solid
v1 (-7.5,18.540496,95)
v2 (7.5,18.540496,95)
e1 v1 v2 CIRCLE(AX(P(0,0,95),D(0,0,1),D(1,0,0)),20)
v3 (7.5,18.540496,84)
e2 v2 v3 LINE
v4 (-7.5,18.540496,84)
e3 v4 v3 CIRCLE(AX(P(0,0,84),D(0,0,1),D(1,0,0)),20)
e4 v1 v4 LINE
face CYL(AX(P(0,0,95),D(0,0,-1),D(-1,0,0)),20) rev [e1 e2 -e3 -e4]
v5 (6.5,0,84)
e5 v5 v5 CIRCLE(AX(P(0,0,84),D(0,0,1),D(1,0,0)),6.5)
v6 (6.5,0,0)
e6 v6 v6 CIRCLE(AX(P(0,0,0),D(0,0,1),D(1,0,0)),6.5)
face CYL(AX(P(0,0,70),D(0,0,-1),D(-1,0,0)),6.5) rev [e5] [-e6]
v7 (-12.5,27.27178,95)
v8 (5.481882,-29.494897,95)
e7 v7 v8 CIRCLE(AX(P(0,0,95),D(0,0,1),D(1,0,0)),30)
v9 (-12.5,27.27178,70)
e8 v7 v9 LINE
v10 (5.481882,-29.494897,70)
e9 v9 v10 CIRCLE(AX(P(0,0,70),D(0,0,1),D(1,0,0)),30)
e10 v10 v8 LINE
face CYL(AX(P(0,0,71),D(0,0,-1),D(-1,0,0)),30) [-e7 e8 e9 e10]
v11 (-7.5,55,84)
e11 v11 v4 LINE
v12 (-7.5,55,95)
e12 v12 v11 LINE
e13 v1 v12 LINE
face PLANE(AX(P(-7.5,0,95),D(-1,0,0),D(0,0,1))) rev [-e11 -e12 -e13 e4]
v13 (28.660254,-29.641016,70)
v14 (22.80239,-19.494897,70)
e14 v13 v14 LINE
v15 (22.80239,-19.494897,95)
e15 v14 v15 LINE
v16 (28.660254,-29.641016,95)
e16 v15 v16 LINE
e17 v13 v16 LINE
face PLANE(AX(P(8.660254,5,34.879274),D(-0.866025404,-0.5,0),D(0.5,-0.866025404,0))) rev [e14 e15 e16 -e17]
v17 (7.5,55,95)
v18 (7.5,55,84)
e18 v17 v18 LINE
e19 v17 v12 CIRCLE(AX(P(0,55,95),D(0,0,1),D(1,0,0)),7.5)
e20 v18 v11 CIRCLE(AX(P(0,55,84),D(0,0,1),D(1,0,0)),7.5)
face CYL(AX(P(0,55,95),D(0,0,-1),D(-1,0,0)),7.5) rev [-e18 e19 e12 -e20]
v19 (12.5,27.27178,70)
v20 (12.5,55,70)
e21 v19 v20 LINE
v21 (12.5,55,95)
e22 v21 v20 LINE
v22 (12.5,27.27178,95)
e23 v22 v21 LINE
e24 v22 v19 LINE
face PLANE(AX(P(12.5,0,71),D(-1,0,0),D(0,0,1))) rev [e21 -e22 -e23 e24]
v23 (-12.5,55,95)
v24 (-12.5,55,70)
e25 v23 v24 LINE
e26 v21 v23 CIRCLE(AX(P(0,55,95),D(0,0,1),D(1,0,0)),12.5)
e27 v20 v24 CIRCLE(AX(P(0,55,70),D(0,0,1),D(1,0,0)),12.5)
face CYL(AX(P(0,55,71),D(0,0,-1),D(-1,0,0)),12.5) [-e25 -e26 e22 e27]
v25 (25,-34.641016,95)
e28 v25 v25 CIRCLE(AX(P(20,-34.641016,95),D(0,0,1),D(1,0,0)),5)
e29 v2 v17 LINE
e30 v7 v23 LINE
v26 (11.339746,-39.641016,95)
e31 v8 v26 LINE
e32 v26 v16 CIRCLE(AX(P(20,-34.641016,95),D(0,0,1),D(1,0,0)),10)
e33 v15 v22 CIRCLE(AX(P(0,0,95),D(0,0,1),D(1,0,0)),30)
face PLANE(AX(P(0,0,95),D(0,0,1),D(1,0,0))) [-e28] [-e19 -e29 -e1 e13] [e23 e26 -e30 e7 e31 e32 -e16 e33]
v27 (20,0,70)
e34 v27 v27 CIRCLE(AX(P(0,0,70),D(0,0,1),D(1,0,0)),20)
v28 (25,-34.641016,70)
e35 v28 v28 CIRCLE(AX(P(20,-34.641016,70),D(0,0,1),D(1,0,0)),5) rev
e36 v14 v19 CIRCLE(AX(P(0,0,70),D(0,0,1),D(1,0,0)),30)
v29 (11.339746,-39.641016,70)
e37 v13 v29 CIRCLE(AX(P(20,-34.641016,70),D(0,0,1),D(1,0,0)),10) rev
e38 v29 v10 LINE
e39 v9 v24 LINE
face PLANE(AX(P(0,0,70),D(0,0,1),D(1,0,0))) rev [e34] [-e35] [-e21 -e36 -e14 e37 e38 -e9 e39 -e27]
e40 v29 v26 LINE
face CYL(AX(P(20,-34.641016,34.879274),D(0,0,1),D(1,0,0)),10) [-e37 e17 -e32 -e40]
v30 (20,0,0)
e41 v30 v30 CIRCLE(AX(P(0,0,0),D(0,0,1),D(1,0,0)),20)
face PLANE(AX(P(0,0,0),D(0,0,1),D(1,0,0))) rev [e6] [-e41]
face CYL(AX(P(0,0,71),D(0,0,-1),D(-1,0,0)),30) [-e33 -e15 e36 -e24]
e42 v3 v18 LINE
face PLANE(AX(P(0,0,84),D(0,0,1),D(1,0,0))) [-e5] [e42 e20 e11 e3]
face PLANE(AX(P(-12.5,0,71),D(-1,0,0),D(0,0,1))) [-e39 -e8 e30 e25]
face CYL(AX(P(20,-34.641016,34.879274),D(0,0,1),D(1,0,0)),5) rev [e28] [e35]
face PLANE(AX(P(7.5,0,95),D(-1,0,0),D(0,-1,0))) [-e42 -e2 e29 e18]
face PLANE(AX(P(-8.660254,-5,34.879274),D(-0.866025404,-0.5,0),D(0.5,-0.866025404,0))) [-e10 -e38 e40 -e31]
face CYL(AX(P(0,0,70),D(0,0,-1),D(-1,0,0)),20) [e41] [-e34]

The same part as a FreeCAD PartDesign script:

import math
import FreeCAD as App
import Part
import Sketcher

V = App.Vector
Q = App.Units.Quantity

doc = App.newDocument("Part")
body = doc.addObject("PartDesign::Body", "Body")

sketch1 = body.newObject("Sketcher::SketchObject", "Sketch")
sketch1.AttachmentSupport = (doc.getObject("XY_Plane"), [""])
sketch1.MapMode = "FlatFace"
sketch1.addGeometry([
    Part.Circle(V(0, 0, 0), V(0, 0, 1), 20),
    Part.Circle(V(0, 0, 0), V(0, 0, 1), 6),
], False)
sketch1.addConstraint([
    Sketcher.Constraint("Coincident", 0, 3, -1, 1),
    Sketcher.Constraint("Coincident", 1, 3, -1, 1),
    Sketcher.Constraint("Diameter", 0, Q("40 mm")),
    Sketcher.Constraint("Diameter", 1, Q("13 mm")),
])
pad1 = body.newObject("PartDesign::Pad", "Pad")
pad1.Profile = sketch1
pad1.Length = 70
body2 = doc.addObject("PartDesign::Body", "Body001")

sketch2 = body2.newObject("Sketcher::SketchObject", "Sketch001")
sketch2.AttachmentSupport = (doc.getObject("XY_Plane001"), [""])
sketch2.MapMode = "FlatFace"
sketch2.AttachmentOffset = App.Placement(V(0, 0, 70), App.Rotation())
sketch2.addGeometry([
    Part.ArcOfCircle(Part.Circle(V(0, 0, 0), V(0, 0, 1), 30), math.radians(115), math.radians(360)),
    Part.ArcOfCircle(Part.Circle(V(0, 0, 0), V(0, 0, 1), 30), math.radians(0), math.radians(65)),
    Part.LineSegment(V(12, 27, 0), V(12, 55, 0)),
    Part.ArcOfCircle(Part.Circle(V(0, 55, 0), V(0, 0, 1), 12), math.radians(0), math.radians(180)),
    Part.LineSegment(V(-12, 55, 0), V(-12, 27, 0)),
    Part.ArcOfCircle(Part.Circle(V(0, 0, 0), V(0, 0, 1), 20), math.radians(129), math.radians(360)),
    Part.ArcOfCircle(Part.Circle(V(0, 0, 0), V(0, 0, 1), 20), math.radians(112.02), math.radians(128.68)),
    Part.LineSegment(V(-8, 19, 0), V(-8, 55, 0)),
    Part.ArcOfCircle(Part.Circle(V(0, 55, 0), V(0, 0, 1), 8), math.radians(0), math.radians(180)),
    Part.LineSegment(V(8, 55, 0), V(8, 19, 0)),
    Part.ArcOfCircle(Part.Circle(V(0, 0, 0), V(0, 0, 1), 20), math.radians(51.32), math.radians(67.98)),
    Part.ArcOfCircle(Part.Circle(V(0, 0, 0), V(0, 0, 1), 20), math.radians(0), math.radians(51)),
], False)
sketch2.addConstraint([
    Sketcher.Constraint("Tangent", 0, 2, 1, 1),
    Sketcher.Constraint("Coincident", 1, 2, 2, 1),
    Sketcher.Constraint("Tangent", 2, 2, 3, 1),
    Sketcher.Constraint("Tangent", 3, 2, 4, 1),
    Sketcher.Constraint("Coincident", 4, 2, 0, 1),
    Sketcher.Constraint("Tangent", 5, 1, 6, 2),
    Sketcher.Constraint("Coincident", 6, 1, 7, 1),
    Sketcher.Constraint("Tangent", 7, 2, 8, 2),
    Sketcher.Constraint("Tangent", 8, 1, 9, 1),
    Sketcher.Constraint("Coincident", 9, 2, 10, 2),
    Sketcher.Constraint("Tangent", 10, 1, 11, 2),
    Sketcher.Constraint("Tangent", 11, 1, 5, 2),
    Sketcher.Constraint("Vertical", 2),
    Sketcher.Constraint("Vertical", 4),
    Sketcher.Constraint("Vertical", 7),
    Sketcher.Constraint("Vertical", 9),
    Sketcher.Constraint("Coincident", 0, 3, -1, 1),
    Sketcher.Constraint("Coincident", 5, 3, -1, 1),
    Sketcher.Constraint("Coincident", 10, 3, -1, 1),
    Sketcher.Constraint("Coincident", 8, 3, 3, 3),
    Sketcher.Constraint("Equal", 0, 1),
    Sketcher.Constraint("Equal", 5, 6),
    Sketcher.Constraint("PointOnObject", 3, 3, -2),
    Sketcher.Constraint("PointOnObject", 0, 2, -1),
    Sketcher.Constraint("PointOnObject", 11, 1, -1),
    Sketcher.Constraint("Horizontal", 5, 1, 10, 1),
    Sketcher.Constraint("Vertical", 4, 2, 5, 1),
    Sketcher.Constraint("Radius", 0, Q("30 mm")),
    Sketcher.Constraint("Radius", 5, Q("20 mm")),
    Sketcher.Constraint("Radius", 3, Q("12.5 mm")),
    Sketcher.Constraint("Radius", 8, Q("7.5 mm")),
    Sketcher.Constraint("DistanceY", -1, 1, 3, 3, Q("55 mm")),
])
pad2 = body2.newObject("PartDesign::Pad", "Pad001")
pad2.Profile = sketch2
pad2.Length = 25
body.AllowCompound = True
doc.recompute()

boolean = body.newObject("PartDesign::Boolean", "Boolean")
boolean.Type = "Fuse"
boolean.addObjects([body2])

sketch3 = body.newObject("Sketcher::SketchObject", "Sketch002")
sketch3.AttachmentSupport = (doc.getObject("XY_Plane"), [""])
sketch3.MapMode = "FlatFace"
sketch3.AttachmentOffset = App.Placement(V(0, 0, 70), App.Rotation())
sketch3.addGeometry([
    Part.LineSegment(V(8, 19, 0), V(8, 55, 0)),
    Part.ArcOfCircle(Part.Circle(V(0, 55, 0), V(0, 0, 1), 8), math.radians(0), math.radians(180)),
    Part.LineSegment(V(-8, 55, 0), V(-8, 19, 0)),
    Part.ArcOfCircle(Part.Circle(V(0, 0, 0), V(0, 0, 1), 20), math.radians(112), math.radians(428)),
    Part.Circle(V(0, 0, 0), V(0, 0, 1), 6),
], False)
sketch3.addConstraint([
    Sketcher.Constraint("Tangent", 0, 2, 1, 1),
    Sketcher.Constraint("Tangent", 1, 2, 2, 1),
    Sketcher.Constraint("Coincident", 2, 2, 3, 1),
    Sketcher.Constraint("Coincident", 3, 2, 0, 1),
    Sketcher.Constraint("Vertical", 0),
    Sketcher.Constraint("Vertical", 2),
    Sketcher.Constraint("Coincident", 3, 3, -1, 1),
    Sketcher.Constraint("Coincident", 4, 3, -1, 1),
    Sketcher.Constraint("PointOnObject", 1, 3, -2),
    Sketcher.Constraint("Diameter", 4, Q("13 mm")),
    Sketcher.Constraint("Radius", 3, Q("20 mm")),
    Sketcher.Constraint("Radius", 1, Q("7.5 mm")),
    Sketcher.Constraint("DistanceY", -1, 1, 1, 3, Q("55 mm")),
])
pad3 = body.newObject("PartDesign::Pad", "Pad002")
pad3.Profile = sketch3
pad3.Length = 1

sketch4 = body.newObject("Sketcher::SketchObject", "Sketch003")
sketch4.AttachmentSupport = (doc.getObject("XY_Plane"), [""])
sketch4.MapMode = "FlatFace"
sketch4.AttachmentOffset = App.Placement(V(0, 0, 70), App.Rotation())
sketch4.addGeometry([
    Part.LineSegment(V(29, -30, 0), V(23, -19, 0)),
    Part.ArcOfCircle(Part.Circle(V(0, 0, 0), V(0, 0, 1), 30), math.radians(-79), math.radians(-41)),
    Part.LineSegment(V(5, -29, 0), V(11, -40, 0)),
    Part.ArcOfCircle(Part.Circle(V(20, -35, 0), V(0, 0, 1), 10), math.radians(-150), math.radians(30)),
    Part.Circle(V(20, -35, 0), V(0, 0, 1), 5),
], False)
sketch4.addConstraint([
    Sketcher.Constraint("Coincident", 0, 2, 1, 2),
    Sketcher.Constraint("Coincident", 1, 1, 2, 1),
    Sketcher.Constraint("Tangent", 2, 2, 3, 1),
    Sketcher.Constraint("Tangent", 3, 2, 0, 1),
    Sketcher.Constraint("Coincident", 1, 3, -1, 1),
    Sketcher.Constraint("Coincident", 4, 3, 3, 3),
    Sketcher.Constraint("Parallel", 0, 2),
    Sketcher.Constraint("Equal", 0, 2),
    Sketcher.Constraint("Diameter", 4, Q("10 mm")),
    Sketcher.Constraint("Radius", 1, Q("30 mm")),
    Sketcher.Constraint("Radius", 3, Q("10 mm")),
    Sketcher.Constraint("Angle", 0, Q("120 deg")),
    Sketcher.Constraint("DistanceX", -1, 1, 3, 3, Q("20 mm")),
])
pad4 = body.newObject("PartDesign::Pad", "Pad003")
pad4.Profile = sketch4
pad4.Length = 25

sketch5 = body.newObject("Sketcher::SketchObject", "Sketch004")
sketch5.AttachmentSupport = (doc.getObject("XY_Plane"), [""])
sketch5.MapMode = "FlatFace"
sketch5.AttachmentOffset = App.Placement(V(0, 0, 71), App.Rotation())
sketch5.addGeometry([
    Part.LineSegment(V(8, 19, 0), V(8, 55, 0)),
    Part.ArcOfCircle(Part.Circle(V(0, 55, 0), V(0, 0, 1), 8), math.radians(0), math.radians(180)),
    Part.LineSegment(V(-8, 55, 0), V(-8, 19, 0)),
    Part.ArcOfCircle(Part.Circle(V(0, 0, 0), V(0, 0, 1), 20), math.radians(112), math.radians(428)),
    Part.Circle(V(0, 0, 0), V(0, 0, 1), 6),
], False)
sketch5.addConstraint([
    Sketcher.Constraint("Tangent", 0, 2, 1, 1),
    Sketcher.Constraint("Tangent", 1, 2, 2, 1),
    Sketcher.Constraint("Coincident", 2, 2, 3, 1),
    Sketcher.Constraint("Coincident", 3, 2, 0, 1),
    Sketcher.Constraint("Vertical", 0),
    Sketcher.Constraint("Vertical", 2),
    Sketcher.Constraint("Coincident", 3, 3, -1, 1),
    Sketcher.Constraint("Coincident", 4, 3, -1, 1),
    Sketcher.Constraint("PointOnObject", 1, 3, -2),
    Sketcher.Constraint("Diameter", 4, Q("13 mm")),
    Sketcher.Constraint("Radius", 3, Q("20 mm")),
    Sketcher.Constraint("Radius", 1, Q("7.5 mm")),
    Sketcher.Constraint("DistanceY", -1, 1, 1, 3, Q("55 mm")),
])
pad5 = body.newObject("PartDesign::Pad", "Pad004")
pad5.Profile = sketch5
pad5.Length = 13

doc.recompute()
